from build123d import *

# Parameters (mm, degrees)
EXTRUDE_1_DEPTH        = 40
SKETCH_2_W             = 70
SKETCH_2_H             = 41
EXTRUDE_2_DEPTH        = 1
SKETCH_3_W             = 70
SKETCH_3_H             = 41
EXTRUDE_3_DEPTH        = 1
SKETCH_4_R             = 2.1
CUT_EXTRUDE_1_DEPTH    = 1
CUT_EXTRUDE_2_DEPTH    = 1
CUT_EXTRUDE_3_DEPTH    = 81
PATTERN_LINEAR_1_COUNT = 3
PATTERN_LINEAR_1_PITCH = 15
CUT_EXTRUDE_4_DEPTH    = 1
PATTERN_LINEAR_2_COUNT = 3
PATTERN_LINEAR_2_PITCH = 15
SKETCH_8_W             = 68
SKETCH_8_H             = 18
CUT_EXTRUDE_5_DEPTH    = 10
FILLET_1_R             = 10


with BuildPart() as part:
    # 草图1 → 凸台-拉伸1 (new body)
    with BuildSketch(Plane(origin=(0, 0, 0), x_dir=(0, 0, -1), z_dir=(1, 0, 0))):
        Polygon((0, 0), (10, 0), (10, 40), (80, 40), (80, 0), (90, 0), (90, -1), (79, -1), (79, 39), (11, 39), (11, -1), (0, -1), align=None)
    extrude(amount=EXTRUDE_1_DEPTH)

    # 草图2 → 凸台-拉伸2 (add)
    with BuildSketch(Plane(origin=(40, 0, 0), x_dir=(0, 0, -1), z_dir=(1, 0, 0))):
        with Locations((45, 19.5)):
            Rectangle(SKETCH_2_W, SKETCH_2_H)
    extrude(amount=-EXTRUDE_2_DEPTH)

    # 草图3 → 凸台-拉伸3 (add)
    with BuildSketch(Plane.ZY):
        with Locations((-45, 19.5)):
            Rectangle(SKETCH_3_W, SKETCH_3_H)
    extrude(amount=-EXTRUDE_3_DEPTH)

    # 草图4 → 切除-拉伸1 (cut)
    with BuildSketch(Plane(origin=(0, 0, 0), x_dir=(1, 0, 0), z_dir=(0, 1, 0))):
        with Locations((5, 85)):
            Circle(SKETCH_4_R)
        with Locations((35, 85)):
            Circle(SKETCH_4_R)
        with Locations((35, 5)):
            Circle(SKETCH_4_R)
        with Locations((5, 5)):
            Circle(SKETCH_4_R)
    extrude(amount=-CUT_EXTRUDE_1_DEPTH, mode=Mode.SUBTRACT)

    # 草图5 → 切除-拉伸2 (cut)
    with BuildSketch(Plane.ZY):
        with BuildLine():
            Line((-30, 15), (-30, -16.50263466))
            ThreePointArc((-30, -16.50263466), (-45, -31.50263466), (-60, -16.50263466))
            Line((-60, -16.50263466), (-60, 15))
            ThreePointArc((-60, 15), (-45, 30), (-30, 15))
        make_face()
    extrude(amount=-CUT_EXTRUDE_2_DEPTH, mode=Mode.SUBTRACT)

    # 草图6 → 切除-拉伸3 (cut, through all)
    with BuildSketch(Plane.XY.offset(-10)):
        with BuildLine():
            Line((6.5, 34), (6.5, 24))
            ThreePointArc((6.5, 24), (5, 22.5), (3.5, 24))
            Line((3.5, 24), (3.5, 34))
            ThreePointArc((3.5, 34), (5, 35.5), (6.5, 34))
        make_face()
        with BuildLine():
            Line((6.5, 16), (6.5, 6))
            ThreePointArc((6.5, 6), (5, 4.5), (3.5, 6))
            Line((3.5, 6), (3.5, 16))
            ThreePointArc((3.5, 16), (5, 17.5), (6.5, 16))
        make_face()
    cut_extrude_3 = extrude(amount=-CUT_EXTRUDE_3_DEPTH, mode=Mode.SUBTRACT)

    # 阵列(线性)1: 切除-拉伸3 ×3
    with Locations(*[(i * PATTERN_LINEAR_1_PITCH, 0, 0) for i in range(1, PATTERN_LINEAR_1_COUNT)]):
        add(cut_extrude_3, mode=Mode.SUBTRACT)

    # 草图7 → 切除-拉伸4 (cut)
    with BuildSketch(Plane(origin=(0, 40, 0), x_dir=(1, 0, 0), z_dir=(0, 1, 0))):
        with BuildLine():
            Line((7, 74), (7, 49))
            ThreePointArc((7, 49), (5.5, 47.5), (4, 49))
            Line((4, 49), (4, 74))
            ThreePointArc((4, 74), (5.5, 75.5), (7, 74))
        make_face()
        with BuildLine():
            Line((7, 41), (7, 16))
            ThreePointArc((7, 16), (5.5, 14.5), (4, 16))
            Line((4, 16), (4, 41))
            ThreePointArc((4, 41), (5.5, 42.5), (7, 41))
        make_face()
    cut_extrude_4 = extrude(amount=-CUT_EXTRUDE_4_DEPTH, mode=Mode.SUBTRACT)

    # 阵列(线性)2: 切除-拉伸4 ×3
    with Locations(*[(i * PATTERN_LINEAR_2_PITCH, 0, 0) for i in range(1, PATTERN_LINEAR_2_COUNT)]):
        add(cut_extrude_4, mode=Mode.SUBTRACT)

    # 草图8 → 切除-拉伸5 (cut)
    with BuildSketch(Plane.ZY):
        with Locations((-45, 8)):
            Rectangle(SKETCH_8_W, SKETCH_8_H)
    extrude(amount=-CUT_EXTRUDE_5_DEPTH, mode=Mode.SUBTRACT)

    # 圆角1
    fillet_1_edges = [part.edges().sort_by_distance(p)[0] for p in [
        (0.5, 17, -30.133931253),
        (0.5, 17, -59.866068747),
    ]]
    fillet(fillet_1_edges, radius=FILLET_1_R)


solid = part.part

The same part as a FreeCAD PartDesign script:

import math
import FreeCAD as App
import Part
import Sketcher

V = App.Vector
Q = App.Units.Quantity


def edges_at(feature, points):
    """Names of the edges that pass closest to the given points."""
    edges = feature.Shape.Edges
    near = lambda p: min(range(len(edges)), key=lambda i: edges[i].distToShape(Part.Vertex(*p))[0])
    return sorted({f"Edge{near(p) + 1}" for p in points})

doc = App.newDocument("Part")
body = doc.addObject("PartDesign::Body", "Body")

sketch1 = body.newObject("Sketcher::SketchObject", "Sketch")
sketch1.AttachmentSupport = (doc.getObject("YZ_Plane"), [""])
sketch1.MapMode = "FlatFace"
sketch1.addGeometry([
    Part.LineSegment(V(0, -10, 0), V(0, 0, 0)),
    Part.LineSegment(V(0, 0, 0), V(-1, 0, 0)),
    Part.LineSegment(V(-1, 0, 0), V(-1, -11, 0)),
    Part.LineSegment(V(-1, -11, 0), V(39, -11, 0)),
    Part.LineSegment(V(39, -11, 0), V(39, -79, 0)),
    Part.LineSegment(V(39, -79, 0), V(-1, -79, 0)),
    Part.LineSegment(V(-1, -79, 0), V(-1, -90, 0)),
    Part.LineSegment(V(-1, -90, 0), V(0, -90, 0)),
    Part.LineSegment(V(0, -90, 0), V(0, -80, 0)),
    Part.LineSegment(V(0, -80, 0), V(40, -80, 0)),
    Part.LineSegment(V(40, -80, 0), V(40, -10, 0)),
    Part.LineSegment(V(40, -10, 0), V(0, -10, 0)),
], False)
sketch1.addConstraint([
    Sketcher.Constraint("Coincident", 0, 2, 1, 1),
    Sketcher.Constraint("Coincident", 1, 2, 2, 1),
    Sketcher.Constraint("Coincident", 2, 2, 3, 1),
    Sketcher.Constraint("Coincident", 3, 2, 4, 1),
    Sketcher.Constraint("Coincident", 4, 2, 5, 1),
    Sketcher.Constraint("Coincident", 5, 2, 6, 1),
    Sketcher.Constraint("Coincident", 6, 2, 7, 1),
    Sketcher.Constraint("Coincident", 7, 2, 8, 1),
    Sketcher.Constraint("Coincident", 8, 2, 9, 1),
    Sketcher.Constraint("Coincident", 9, 2, 10, 1),
    Sketcher.Constraint("Coincident", 10, 2, 11, 1),
    Sketcher.Constraint("Coincident", 11, 2, 0, 1),
    Sketcher.Constraint("Vertical", 0),
    Sketcher.Constraint("Horizontal", 1),
    Sketcher.Constraint("Vertical", 2),
    Sketcher.Constraint("Horizontal", 3),
    Sketcher.Constraint("Vertical", 4),
    Sketcher.Constraint("Horizontal", 5),
    Sketcher.Constraint("Vertical", 6),
    Sketcher.Constraint("Horizontal", 7),
    Sketcher.Constraint("Vertical", 8),
    Sketcher.Constraint("Horizontal", 9),
    Sketcher.Constraint("Vertical", 10),
    Sketcher.Constraint("Horizontal", 11),
    Sketcher.Constraint("Coincident", 0, 2, -1, 1),
    Sketcher.Constraint("PointOnObject", 7, 2, -2),
    Sketcher.Constraint("Vertical", 2, 2, 5, 2),
    Sketcher.Constraint("Equal", 5, 9),
    Sketcher.Constraint("Equal", 2, 6),
    Sketcher.Constraint("Equal", 0, 8),
    Sketcher.Constraint("DistanceX", 1, 2, 1, 1, Q("1 mm")),
    Sketcher.Constraint("DistanceX", 3, 1, 3, 2, Q("40 mm")),
    Sketcher.Constraint("DistanceY", 0, 1, 0, 2, Q("10 mm")),
    Sketcher.Constraint("DistanceY", 2, 2, 2, 1, Q("11 mm")),
    Sketcher.Constraint("DistanceY", 4, 2, 4, 1, Q("68 mm")),
])
pad1 = body.newObject("PartDesign::Pad", "Pad")
pad1.Profile = sketch1
pad1.Length = 40

sketch2 = body.newObject("Sketcher::SketchObject", "Sketch001")
sketch2.AttachmentSupport = (doc.getObject("YZ_Plane"), [""])
sketch2.MapMode = "FlatFace"
sketch2.AttachmentOffset = App.Placement(V(0, 0, 40), App.Rotation())
sketch2.addGeometry([
    Part.LineSegment(V(40, -10, 0), V(-1, -10, 0)),
    Part.LineSegment(V(-1, -10, 0), V(-1, -80, 0)),
    Part.LineSegment(V(-1, -80, 0), V(40, -80, 0)),
    Part.LineSegment(V(40, -80, 0), V(40, -10, 0)),
], False)
sketch2.addConstraint([
    Sketcher.Constraint("Coincident", 0, 2, 1, 1),
    Sketcher.Constraint("Coincident", 1, 2, 2, 1),
    Sketcher.Constraint("Coincident", 2, 2, 3, 1),
    Sketcher.Constraint("Coincident", 3, 2, 0, 1),
    Sketcher.Constraint("Horizontal", 0),
    Sketcher.Constraint("Vertical", 1),
    Sketcher.Constraint("Horizontal", 2),
    Sketcher.Constraint("Vertical", 3),
    Sketcher.Constraint("DistanceX", 0, 2, 0, 1, Q("41 mm")),
    Sketcher.Constraint("DistanceY", 1, 2, 1, 1, Q("70 mm")),
    Sketcher.Constraint("DistanceX", 0, 2, -1, 1, Q("1 mm")),
    Sketcher.Constraint("DistanceY", 0, 2, -1, 1, Q("10 mm")),
])
pad2 = body.newObject("PartDesign::Pad", "Pad001")
pad2.Profile = sketch2
pad2.Length = 1
pad2.Reversed = True

sketch3 = body.newObject("Sketcher::SketchObject", "Sketch002")
sketch3.AttachmentSupport = (doc.getObject("YZ_Plane"), [""])
sketch3.MapMode = "FlatFace"
sketch3.addGeometry([
    Part.LineSegment(V(40, -80, 0), V(-1, -80, 0)),
    Part.LineSegment(V(-1, -80, 0), V(-1, -10, 0)),
    Part.LineSegment(V(-1, -10, 0), V(40, -10, 0)),
    Part.LineSegment(V(40, -10, 0), V(40, -80, 0)),
], False)
sketch3.addConstraint([
    Sketcher.Constraint("Coincident", 0, 2, 1, 1),
    Sketcher.Constraint("Coincident", 1, 2, 2, 1),
    Sketcher.Constraint("Coincident", 2, 2, 3, 1),
    Sketcher.Constraint("Coincident", 3, 2, 0, 1),
    Sketcher.Constraint("Horizontal", 0),
    Sketcher.Constraint("Vertical", 1),
    Sketcher.Constraint("Horizontal", 2),
    Sketcher.Constraint("Vertical", 3),
    Sketcher.Constraint("DistanceX", 0, 2, 0, 1, Q("41 mm")),
    Sketcher.Constraint("DistanceY", 1, 1, 1, 2, Q("70 mm")),
    Sketcher.Constraint("DistanceX", 0, 2, -1, 1, Q("1 mm")),
    Sketcher.Constraint("DistanceY", 0, 2, -1, 1, Q("80 mm")),
])
pad3 = body.newObject("PartDesign::Pad", "Pad002")
pad3.Profile = sketch3
pad3.Length = 1

sketch4 = body.newObject("Sketcher::SketchObject", "Sketch003")
sketch4.AttachmentSupport = (doc.getObject("XZ_Plane"), [""])
sketch4.MapMode = "FlatFace"
sketch4.addGeometry([
    Part.Circle(V(5, -85, 0), V(0, 0, 1), 2.1),
    Part.Circle(V(35, -85, 0), V(0, 0, 1), 2.1),
    Part.Circle(V(35, -5, 0), V(0, 0, 1), 2.1),
    Part.Circle(V(5, -5, 0), V(0, 0, 1), 2.1),
], False)
sketch4.addConstraint([
    Sketcher.Constraint("Equal", 0, 1),
    Sketcher.Constraint("Equal", 1, 2),
    Sketcher.Constraint("Equal", 2, 3),
    Sketcher.Constraint("Horizontal", 0, 3, 1, 3),
    Sketcher.Constraint("Horizontal", 2, 3, 3, 3),
    Sketcher.Constraint("Vertical", 1, 3, 2, 3),
    Sketcher.Constraint("Vertical", 0, 3, 3, 3),
    Sketcher.Constraint("Diameter", 0, Q("4.2 mm")),
    Sketcher.Constraint("DistanceX", -1, 1, 0, 3, Q("5 mm")),
    Sketcher.Constraint("DistanceY", 0, 3, -1, 1, Q("85 mm")),
    Sketcher.Constraint("DistanceX", -1, 1, 1, 3, Q("35 mm")),
    Sketcher.Constraint("DistanceY", 2, 3, -1, 1, Q("5 mm")),
])
pocket1 = body.newObject("PartDesign::Pocket", "Pocket")
pocket1.Profile = sketch4
pocket1.Length = 1
pocket1.Reversed = True

sketch5 = body.newObject("Sketcher::SketchObject", "Sketch004")
sketch5.AttachmentSupport = (doc.getObject("YZ_Plane"), [""])
sketch5.MapMode = "FlatFace"
sketch5.addGeometry([
    Part.LineSegment(V(-17, -30, 0), V(15, -30, 0)),
    Part.ArcOfCircle(Part.Circle(V(15, -45, 0), V(0, 0, 1), 15), math.radians(-90), math.radians(90)),
    Part.LineSegment(V(15, -60, 0), V(-17, -60, 0)),
    Part.ArcOfCircle(Part.Circle(V(-17, -45, 0), V(0, 0, 1), 15), math.radians(90), math.radians(270)),
], False)
sketch5.addConstraint([
    Sketcher.Constraint("Tangent", 0, 2, 1, 2),
    Sketcher.Constraint("Tangent", 1, 1, 2, 1),
    Sketcher.Constraint("Tangent", 2, 2, 3, 2),
    Sketcher.Constraint("Tangent", 3, 1, 0, 1),
    Sketcher.Constraint("Horizontal", 0),
    Sketcher.Constraint("Horizontal", 2),
    Sketcher.Constraint("Radius", 1, Q("15 mm")),
    Sketcher.Constraint("DistanceX", -1, 1, 1, 3, Q("15 mm")),
    Sketcher.Constraint("DistanceY", 1, 3, -1, 1, Q("45 mm")),
    Sketcher.Constraint("DistanceX", 0, 1, 0, 2, Q("31.502635 mm")),
])
pocket2 = body.newObject("PartDesign::Pocket", "Pocket001")
pocket2.Profile = sketch5
pocket2.Length = 1
pocket2.Reversed = True

sketch6 = body.newObject("Sketcher::SketchObject", "Sketch005")
sketch6.AttachmentSupport = (doc.getObject("XY_Plane"), [""])
sketch6.MapMode = "FlatFace"
sketch6.AttachmentOffset = App.Placement(V(0, 0, -10), App.Rotation())
sketch6.addGeometry([
    Part.LineSegment(V(6.5, 24, 0), V(6.5, 34, 0)),
    Part.ArcOfCircle(Part.Circle(V(5, 34, 0), V(0, 0, 1), 1.5), math.radians(0), math.radians(180)),
    Part.LineSegment(V(3.5, 34, 0), V(3.5, 24, 0)),
    Part.ArcOfCircle(Part.Circle(V(5, 24, 0), V(0, 0, 1), 1.5), math.radians(180), math.radians(360)),
    Part.LineSegment(V(6.5, 6, 0), V(6.5, 16, 0)),
    Part.ArcOfCircle(Part.Circle(V(5, 16, 0), V(0, 0, 1), 1.5), math.radians(0), math.radians(180)),
    Part.LineSegment(V(3.5, 16, 0), V(3.5, 6, 0)),
    Part.ArcOfCircle(Part.Circle(V(5, 6, 0), V(0, 0, 1), 1.5), math.radians(180), math.radians(360)),
], False)
sketch6.addConstraint([
    Sketcher.Constraint("Tangent", 0, 2, 1, 1),
    Sketcher.Constraint("Tangent", 1, 2, 2, 1),
    Sketcher.Constraint("Tangent", 2, 2, 3, 1),
    Sketcher.Constraint("Tangent", 3, 2, 0, 1),
    Sketcher.Constraint("Tangent", 4, 2, 5, 1),
    Sketcher.Constraint("Tangent", 5, 2, 6, 1),
    Sketcher.Constraint("Tangent", 6, 2, 7, 1),
    Sketcher.Constraint("Tangent", 7, 2, 4, 1),
    Sketcher.Constraint("Vertical", 0),
    Sketcher.Constraint("Vertical", 2),
    Sketcher.Constraint("Vertical", 4),
    Sketcher.Constraint("Vertical", 6),
    Sketcher.Constraint("Equal", 3, 5),
    Sketcher.Constraint("Vertical", 3, 3, 5, 3),
    Sketcher.Constraint("Equal", 2, 4),
    Sketcher.Constraint("Radius", 1, Q("1.5 mm")),
    Sketcher.Constraint("DistanceY", 0, 1, 0, 2, Q("10 mm")),
    Sketcher.Constraint("DistanceX", -1, 1, 1, 3, Q("5 mm")),
    Sketcher.Constraint("DistanceY", -1, 1, 1, 3, Q("34 mm")),
    Sketcher.Constraint("DistanceY", -1, 1, 5, 3, Q("16 mm")),
])
pocket3 = body.newObject("PartDesign::Pocket", "Pocket002")
pocket3.Profile = sketch6
pocket3.Type = "ThroughAll"
doc.recompute()

linearpattern = body.newObject("PartDesign::LinearPattern", "LinearPattern")
linearpattern.Originals = [pocket3]
linearpattern.Direction = (doc.getObject("X_Axis"), [""])
linearpattern.Mode = "offset"
linearpattern.Offset = 15
linearpattern.Occurrences = 3
body.Tip = linearpattern

sketch7 = body.newObject("Sketcher::SketchObject", "Sketch006")
sketch7.AttachmentSupport = (doc.getObject("XZ_Plane"), [""])
sketch7.MapMode = "FlatFace"
sketch7.AttachmentOffset = App.Placement(V(0, 0, -40), App.Rotation())
sketch7.addGeometry([
    Part.LineSegment(V(7, -49, 0), V(7, -74, 0)),
    Part.ArcOfCircle(Part.Circle(V(5.5, -74, 0), V(0, 0, 1), 1.5), math.radians(180), math.radians(360)),
    Part.LineSegment(V(4, -74, 0), V(4, -49, 0)),
    Part.ArcOfCircle(Part.Circle(V(5.5, -49, 0), V(0, 0, 1), 1.5), math.radians(0), math.radians(180)),
    Part.LineSegment(V(7, -16, 0), V(7, -41, 0)),
    Part.ArcOfCircle(Part.Circle(V(5.5, -41, 0), V(0, 0, 1), 1.5), math.radians(180), math.radians(360)),
    Part.LineSegment(V(4, -41, 0), V(4, -16, 0)),
    Part.ArcOfCircle(Part.Circle(V(5.5, -16, 0), V(0, 0, 1), 1.5), math.radians(0), math.radians(180)),
], False)
sketch7.addConstraint([
    Sketcher.Constraint("Tangent", 0, 2, 1, 2),
    Sketcher.Constraint("Tangent", 1, 1, 2, 1),
    Sketcher.Constraint("Tangent", 2, 2, 3, 2),
    Sketcher.Constraint("Tangent", 3, 1, 0, 1),
    Sketcher.Constraint("Tangent", 4, 2, 5, 2),
    Sketcher.Constraint("Tangent", 5, 1, 6, 1),
    Sketcher.Constraint("Tangent", 6, 2, 7, 2),
    Sketcher.Constraint("Tangent", 7, 1, 4, 1),
    Sketcher.Constraint("Vertical", 0),
    Sketcher.Constraint("Vertical", 2),
    Sketcher.Constraint("Vertical", 4),
    Sketcher.Constraint("Vertical", 6),
    Sketcher.Constraint("Equal", 3, 5),
    Sketcher.Constraint("Vertical", 3, 3, 5, 3),
    Sketcher.Constraint("Equal", 2, 4),
    Sketcher.Constraint("Radius", 1, Q("1.5 mm")),
    Sketcher.Constraint("DistanceY", 0, 2, 0, 1, Q("25 mm")),
    Sketcher.Constraint("DistanceY", 1, 3, -1, 1, Q("74 mm")),
    Sketcher.Constraint("DistanceY", 5, 3, -1, 1, Q("41 mm")),
    Sketcher.Constraint("DistanceX", -1, 1, 0, 2, Q("7 mm")),
])
pocket4 = body.newObject("PartDesign::Pocket", "Pocket003")
pocket4.Profile = sketch7
pocket4.Length = 1
pocket4.Reversed = True
doc.recompute()

linearpattern2 = body.newObject("PartDesign::LinearPattern", "LinearPattern001")
linearpattern2.Originals = [pocket4]
linearpattern2.Direction = (doc.getObject("X_Axis"), [""])
linearpattern2.Mode = "offset"
linearpattern2.Offset = 15
linearpattern2.Occurrences = 3
body.Tip = linearpattern2

sketch8 = body.newObject("Sketcher::SketchObject", "Sketch007")
sketch8.AttachmentSupport = (doc.getObject("YZ_Plane"), [""])
sketch8.MapMode = "FlatFace"
sketch8.addGeometry([
    Part.LineSegment(V(17, -79, 0), V(-1, -79, 0)),
    Part.LineSegment(V(-1, -79, 0), V(-1, -11, 0)),
    Part.LineSegment(V(-1, -11, 0), V(17, -11, 0)),
    Part.LineSegment(V(17, -11, 0), V(17, -79, 0)),
], False)
sketch8.addConstraint([
    Sketcher.Constraint("Coincident", 0, 2, 1, 1),
    Sketcher.Constraint("Coincident", 1, 2, 2, 1),
    Sketcher.Constraint("Coincident", 2, 2, 3, 1),
    Sketcher.Constraint("Coincident", 3, 2, 0, 1),
    Sketcher.Constraint("Horizontal", 0),
    Sketcher.Constraint("Vertical", 1),
    Sketcher.Constraint("Horizontal", 2),
    Sketcher.Constraint("Vertical", 3),
    Sketcher.Constraint("DistanceX", 0, 2, 0, 1, Q("18 mm")),
    Sketcher.Constraint("DistanceY", 1, 1, 1, 2, Q("68 mm")),
    Sketcher.Constraint("DistanceX", 0, 2, -1, 1, Q("1 mm")),
    Sketcher.Constraint("DistanceY", 0, 2, -1, 1, Q("79 mm")),
])
pocket5 = body.newObject("PartDesign::Pocket", "Pocket004")
pocket5.Profile = sketch8
pocket5.Length = 10
pocket5.Reversed = True
doc.recompute()

fillet = body.newObject("PartDesign::Fillet", "Fillet")
fillet.Base = (pocket5, edges_at(pocket5, [(0.5, 17, -30.134), (0.5, 17, -59.866)]))
fillet.Radius = 10

doc.recompute()
